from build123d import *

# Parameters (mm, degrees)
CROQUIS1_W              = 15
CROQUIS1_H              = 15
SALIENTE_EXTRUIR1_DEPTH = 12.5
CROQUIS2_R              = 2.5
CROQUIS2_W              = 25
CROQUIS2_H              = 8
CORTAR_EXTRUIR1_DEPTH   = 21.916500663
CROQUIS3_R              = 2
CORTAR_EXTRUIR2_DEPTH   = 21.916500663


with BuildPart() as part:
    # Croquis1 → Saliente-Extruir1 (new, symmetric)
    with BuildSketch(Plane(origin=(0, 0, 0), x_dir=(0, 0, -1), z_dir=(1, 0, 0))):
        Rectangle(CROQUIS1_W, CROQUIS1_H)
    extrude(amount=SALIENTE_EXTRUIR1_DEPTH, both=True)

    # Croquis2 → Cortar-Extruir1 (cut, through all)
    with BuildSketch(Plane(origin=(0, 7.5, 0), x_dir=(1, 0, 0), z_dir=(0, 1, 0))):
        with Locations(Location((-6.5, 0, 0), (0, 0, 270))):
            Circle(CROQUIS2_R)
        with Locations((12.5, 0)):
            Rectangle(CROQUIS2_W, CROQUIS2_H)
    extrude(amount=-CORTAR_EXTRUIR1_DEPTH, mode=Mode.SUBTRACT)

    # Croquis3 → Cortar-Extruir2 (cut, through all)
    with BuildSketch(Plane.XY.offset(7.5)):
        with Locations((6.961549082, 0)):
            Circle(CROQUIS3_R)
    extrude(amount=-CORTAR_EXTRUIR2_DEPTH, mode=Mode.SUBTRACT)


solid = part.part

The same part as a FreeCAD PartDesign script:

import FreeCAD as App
import Part
import Sketcher
from FreeCAD import Vector


def add_polygon(sketch, points):
    """Adds a closed chain of lines whose ends are joined by coincident constraints."""
    first, n = sketch.GeometryCount, len(points)
    for a, b in zip(points, points[1:] + points[:1]):
        sketch.addGeometry(Part.LineSegment(App.Vector(*a, 0), App.Vector(*b, 0)), False)
    for i in range(n):
        sketch.addConstraint(Sketcher.Constraint("Coincident", first + i, 2, first + (i + 1) % n, 1))

doc = App.newDocument("Part")
body = doc.addObject("PartDesign::Body", "Body")

# Sketch on YZ plane
sketch1 = doc.addObject("Sketcher::SketchObject", "Sketch")
body.addObject(sketch1)
sketch1.AttachmentSupport = (doc.YZ_Plane, [""])
sketch1.MapMode = "FlatFace"
add_polygon(sketch1, [(8, 8), (-8, 8), (-8, -8), (8, -8)])  # lines 0-3
sketch1.addConstraint([
    Sketcher.Constraint("Horizontal", 0),
    Sketcher.Constraint("Vertical", 1),
    Sketcher.Constraint("Horizontal", 2),
    Sketcher.Constraint("Vertical", 3),
    Sketcher.Constraint("Symmetric", 0, 2, 2, 2, -1, 1),
    Sketcher.Constraint("Equal", 2, 1),
    Sketcher.Constraint("DistanceX", 0, 2, 0, 1, 15.0),
])
pad1 = doc.addObject("PartDesign::Pad", "Pad")
body.addObject(pad1)
pad1.Profile = sketch1
pad1.Length = 25
pad1.Midplane = True

# Sketch on XZ plane
sketch2 = doc.addObject("Sketcher::SketchObject", "Sketch001")
body.addObject(sketch2)
sketch2.AttachmentSupport = (doc.XZ_Plane, [""])
sketch2.MapMode = "FlatFace"
sketch2.AttachmentOffset = App.Placement(Vector(0, 0, -7.5), App.Rotation())
sketch2.addGeometry(Part.Circle(Vector(-6.5, 0, 0), Vector(0, 0, 1), 2.5), False)  # 0
add_polygon(sketch2, [(0, -4), (0, 4), (25, 4), (25, -4)])  # lines 1-4
sketch2.addConstraint([
    Sketcher.Constraint("Vertical", 1),
    Sketcher.Constraint("Horizontal", 2),
    Sketcher.Constraint("Vertical", 3),
    Sketcher.Constraint("Horizontal", 4),
    Sketcher.Constraint("Symmetric", 1, 2, 4, 2, -1, 1),
    Sketcher.Constraint("PointOnObject", 0, 3, -1),
    Sketcher.Constraint("Diameter", 0, 5.0),
    Sketcher.Constraint("DistanceX", 2, 1, 2, 2, 25.0),
    Sketcher.Constraint("DistanceY", 1, 1, 1, 2, 8.0),
    Sketcher.Constraint("DistanceX", 0, 3, -1, 1, 6.5),
])
pocket1 = doc.addObject("PartDesign::Pocket", "Pocket")
body.addObject(pocket1)
pocket1.Profile = sketch2
pocket1.Type = "ThroughAll"
pocket1.Reversed = True

# Sketch on XY plane
sketch3 = doc.addObject("Sketcher::SketchObject", "Sketch002")
body.addObject(sketch3)
sketch3.AttachmentSupport = (doc.XY_Plane, [""])
sketch3.MapMode = "FlatFace"
sketch3.AttachmentOffset = App.Placement(Vector(0, 0, 7.5), App.Rotation())
sketch3.addGeometry(Part.Circle(Vector(7, 0, 0), Vector(0, 0, 1), 2), False)
sketch3.addConstraint([
    Sketcher.Constraint("PointOnObject", 0, 3, -1),
    Sketcher.Constraint("Diameter", 0, 4.0),
    Sketcher.Constraint("DistanceX", -1, 1, 0, 3, 6.961549),
])
pocket2 = doc.addObject("PartDesign::Pocket", "Pocket001")
body.addObject(pocket2)
pocket2.Profile = sketch3
pocket2.Type = "ThroughAll"

doc.recompute()
